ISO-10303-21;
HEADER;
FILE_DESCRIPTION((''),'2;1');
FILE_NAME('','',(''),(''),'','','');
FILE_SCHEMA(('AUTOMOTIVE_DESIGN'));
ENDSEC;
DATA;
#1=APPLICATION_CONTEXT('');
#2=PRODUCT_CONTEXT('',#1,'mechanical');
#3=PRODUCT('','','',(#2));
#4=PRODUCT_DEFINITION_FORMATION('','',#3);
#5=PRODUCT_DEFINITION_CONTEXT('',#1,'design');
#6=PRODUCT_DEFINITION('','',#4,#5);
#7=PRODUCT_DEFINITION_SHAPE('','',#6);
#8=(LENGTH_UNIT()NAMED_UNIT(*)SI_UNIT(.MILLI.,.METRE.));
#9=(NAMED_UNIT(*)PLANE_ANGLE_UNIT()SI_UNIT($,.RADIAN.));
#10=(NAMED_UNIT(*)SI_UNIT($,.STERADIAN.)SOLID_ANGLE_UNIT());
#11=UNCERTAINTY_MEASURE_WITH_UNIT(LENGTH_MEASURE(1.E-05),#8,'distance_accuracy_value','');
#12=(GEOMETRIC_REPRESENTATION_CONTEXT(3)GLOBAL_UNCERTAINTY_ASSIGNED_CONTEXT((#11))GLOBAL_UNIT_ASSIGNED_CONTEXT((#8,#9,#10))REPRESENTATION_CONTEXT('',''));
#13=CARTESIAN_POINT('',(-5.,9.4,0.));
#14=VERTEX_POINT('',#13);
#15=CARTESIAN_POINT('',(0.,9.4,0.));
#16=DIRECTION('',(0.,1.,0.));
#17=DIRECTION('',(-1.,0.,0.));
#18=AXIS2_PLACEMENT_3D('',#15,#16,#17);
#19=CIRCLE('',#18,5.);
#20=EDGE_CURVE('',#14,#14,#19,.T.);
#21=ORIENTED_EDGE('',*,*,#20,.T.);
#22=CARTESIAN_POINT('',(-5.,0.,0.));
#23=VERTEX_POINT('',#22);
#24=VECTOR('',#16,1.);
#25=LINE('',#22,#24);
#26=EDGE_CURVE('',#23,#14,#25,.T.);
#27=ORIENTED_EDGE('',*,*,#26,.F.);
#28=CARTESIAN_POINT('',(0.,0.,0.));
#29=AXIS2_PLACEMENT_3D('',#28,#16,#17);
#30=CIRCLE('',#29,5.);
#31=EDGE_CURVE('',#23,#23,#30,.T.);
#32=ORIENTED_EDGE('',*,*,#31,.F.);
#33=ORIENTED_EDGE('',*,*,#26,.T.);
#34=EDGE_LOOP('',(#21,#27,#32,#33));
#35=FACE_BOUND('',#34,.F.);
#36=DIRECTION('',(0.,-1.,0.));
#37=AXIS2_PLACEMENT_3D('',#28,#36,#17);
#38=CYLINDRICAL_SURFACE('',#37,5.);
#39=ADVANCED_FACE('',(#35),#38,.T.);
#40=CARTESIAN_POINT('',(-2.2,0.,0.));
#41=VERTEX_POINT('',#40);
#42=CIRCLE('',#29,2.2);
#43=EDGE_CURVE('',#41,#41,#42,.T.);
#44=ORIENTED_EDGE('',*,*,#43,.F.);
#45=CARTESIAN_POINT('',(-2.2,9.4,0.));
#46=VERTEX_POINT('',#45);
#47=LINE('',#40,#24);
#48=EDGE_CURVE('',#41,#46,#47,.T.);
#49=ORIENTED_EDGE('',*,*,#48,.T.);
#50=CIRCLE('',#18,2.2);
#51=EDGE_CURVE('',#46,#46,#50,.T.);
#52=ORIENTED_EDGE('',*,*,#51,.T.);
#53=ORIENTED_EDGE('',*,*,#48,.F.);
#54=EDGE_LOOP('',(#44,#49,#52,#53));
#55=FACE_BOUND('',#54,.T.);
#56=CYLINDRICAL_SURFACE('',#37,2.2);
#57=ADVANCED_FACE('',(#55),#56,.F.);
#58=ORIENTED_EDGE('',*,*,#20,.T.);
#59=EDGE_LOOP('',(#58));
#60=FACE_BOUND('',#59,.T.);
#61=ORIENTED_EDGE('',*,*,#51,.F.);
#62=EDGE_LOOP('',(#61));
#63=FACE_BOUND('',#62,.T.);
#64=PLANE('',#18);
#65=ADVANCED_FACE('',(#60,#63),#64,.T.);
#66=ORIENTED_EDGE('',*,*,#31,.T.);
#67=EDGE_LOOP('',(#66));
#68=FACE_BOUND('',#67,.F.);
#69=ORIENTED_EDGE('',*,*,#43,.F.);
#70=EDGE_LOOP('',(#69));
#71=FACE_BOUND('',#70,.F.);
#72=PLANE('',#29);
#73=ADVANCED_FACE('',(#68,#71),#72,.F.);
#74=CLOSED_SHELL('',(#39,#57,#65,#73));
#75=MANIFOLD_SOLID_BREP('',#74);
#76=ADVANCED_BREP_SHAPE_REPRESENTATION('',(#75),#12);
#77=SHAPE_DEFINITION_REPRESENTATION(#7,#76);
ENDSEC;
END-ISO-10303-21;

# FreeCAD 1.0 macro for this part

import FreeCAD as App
import Part
import Sketcher

V = App.Vector

doc = App.newDocument("Part")
body = doc.addObject("PartDesign::Body", "Body")

# Sketch on XZ plane
sketch1 = body.newObject("Sketcher::SketchObject", "Sketch")
sketch1.AttachmentSupport = (doc.getObject("XZ_Plane"), [""])
sketch1.MapMode = "FlatFace"
sketch1.addGeometry([
    Part.Circle(V(0, 0, 0), V(0, 0, 1), 5),
    Part.Circle(V(0, 0, 0), V(0, 0, 1), 2.2),
], False)
sketch1.addConstraint([
    Sketcher.Constraint("Coincident", 0, 3, -1, 1),
    Sketcher.Constraint("Coincident", 1, 3, -1, 1),
    Sketcher.Constraint("Diameter", 0, 10.0),
    Sketcher.Constraint("Diameter", 1, 4.4),
])
pad1 = body.newObject("PartDesign::Pad", "Pad")
pad1.Profile = sketch1
pad1.Length = 9.4
pad1.Reversed = True

doc.recompute()
